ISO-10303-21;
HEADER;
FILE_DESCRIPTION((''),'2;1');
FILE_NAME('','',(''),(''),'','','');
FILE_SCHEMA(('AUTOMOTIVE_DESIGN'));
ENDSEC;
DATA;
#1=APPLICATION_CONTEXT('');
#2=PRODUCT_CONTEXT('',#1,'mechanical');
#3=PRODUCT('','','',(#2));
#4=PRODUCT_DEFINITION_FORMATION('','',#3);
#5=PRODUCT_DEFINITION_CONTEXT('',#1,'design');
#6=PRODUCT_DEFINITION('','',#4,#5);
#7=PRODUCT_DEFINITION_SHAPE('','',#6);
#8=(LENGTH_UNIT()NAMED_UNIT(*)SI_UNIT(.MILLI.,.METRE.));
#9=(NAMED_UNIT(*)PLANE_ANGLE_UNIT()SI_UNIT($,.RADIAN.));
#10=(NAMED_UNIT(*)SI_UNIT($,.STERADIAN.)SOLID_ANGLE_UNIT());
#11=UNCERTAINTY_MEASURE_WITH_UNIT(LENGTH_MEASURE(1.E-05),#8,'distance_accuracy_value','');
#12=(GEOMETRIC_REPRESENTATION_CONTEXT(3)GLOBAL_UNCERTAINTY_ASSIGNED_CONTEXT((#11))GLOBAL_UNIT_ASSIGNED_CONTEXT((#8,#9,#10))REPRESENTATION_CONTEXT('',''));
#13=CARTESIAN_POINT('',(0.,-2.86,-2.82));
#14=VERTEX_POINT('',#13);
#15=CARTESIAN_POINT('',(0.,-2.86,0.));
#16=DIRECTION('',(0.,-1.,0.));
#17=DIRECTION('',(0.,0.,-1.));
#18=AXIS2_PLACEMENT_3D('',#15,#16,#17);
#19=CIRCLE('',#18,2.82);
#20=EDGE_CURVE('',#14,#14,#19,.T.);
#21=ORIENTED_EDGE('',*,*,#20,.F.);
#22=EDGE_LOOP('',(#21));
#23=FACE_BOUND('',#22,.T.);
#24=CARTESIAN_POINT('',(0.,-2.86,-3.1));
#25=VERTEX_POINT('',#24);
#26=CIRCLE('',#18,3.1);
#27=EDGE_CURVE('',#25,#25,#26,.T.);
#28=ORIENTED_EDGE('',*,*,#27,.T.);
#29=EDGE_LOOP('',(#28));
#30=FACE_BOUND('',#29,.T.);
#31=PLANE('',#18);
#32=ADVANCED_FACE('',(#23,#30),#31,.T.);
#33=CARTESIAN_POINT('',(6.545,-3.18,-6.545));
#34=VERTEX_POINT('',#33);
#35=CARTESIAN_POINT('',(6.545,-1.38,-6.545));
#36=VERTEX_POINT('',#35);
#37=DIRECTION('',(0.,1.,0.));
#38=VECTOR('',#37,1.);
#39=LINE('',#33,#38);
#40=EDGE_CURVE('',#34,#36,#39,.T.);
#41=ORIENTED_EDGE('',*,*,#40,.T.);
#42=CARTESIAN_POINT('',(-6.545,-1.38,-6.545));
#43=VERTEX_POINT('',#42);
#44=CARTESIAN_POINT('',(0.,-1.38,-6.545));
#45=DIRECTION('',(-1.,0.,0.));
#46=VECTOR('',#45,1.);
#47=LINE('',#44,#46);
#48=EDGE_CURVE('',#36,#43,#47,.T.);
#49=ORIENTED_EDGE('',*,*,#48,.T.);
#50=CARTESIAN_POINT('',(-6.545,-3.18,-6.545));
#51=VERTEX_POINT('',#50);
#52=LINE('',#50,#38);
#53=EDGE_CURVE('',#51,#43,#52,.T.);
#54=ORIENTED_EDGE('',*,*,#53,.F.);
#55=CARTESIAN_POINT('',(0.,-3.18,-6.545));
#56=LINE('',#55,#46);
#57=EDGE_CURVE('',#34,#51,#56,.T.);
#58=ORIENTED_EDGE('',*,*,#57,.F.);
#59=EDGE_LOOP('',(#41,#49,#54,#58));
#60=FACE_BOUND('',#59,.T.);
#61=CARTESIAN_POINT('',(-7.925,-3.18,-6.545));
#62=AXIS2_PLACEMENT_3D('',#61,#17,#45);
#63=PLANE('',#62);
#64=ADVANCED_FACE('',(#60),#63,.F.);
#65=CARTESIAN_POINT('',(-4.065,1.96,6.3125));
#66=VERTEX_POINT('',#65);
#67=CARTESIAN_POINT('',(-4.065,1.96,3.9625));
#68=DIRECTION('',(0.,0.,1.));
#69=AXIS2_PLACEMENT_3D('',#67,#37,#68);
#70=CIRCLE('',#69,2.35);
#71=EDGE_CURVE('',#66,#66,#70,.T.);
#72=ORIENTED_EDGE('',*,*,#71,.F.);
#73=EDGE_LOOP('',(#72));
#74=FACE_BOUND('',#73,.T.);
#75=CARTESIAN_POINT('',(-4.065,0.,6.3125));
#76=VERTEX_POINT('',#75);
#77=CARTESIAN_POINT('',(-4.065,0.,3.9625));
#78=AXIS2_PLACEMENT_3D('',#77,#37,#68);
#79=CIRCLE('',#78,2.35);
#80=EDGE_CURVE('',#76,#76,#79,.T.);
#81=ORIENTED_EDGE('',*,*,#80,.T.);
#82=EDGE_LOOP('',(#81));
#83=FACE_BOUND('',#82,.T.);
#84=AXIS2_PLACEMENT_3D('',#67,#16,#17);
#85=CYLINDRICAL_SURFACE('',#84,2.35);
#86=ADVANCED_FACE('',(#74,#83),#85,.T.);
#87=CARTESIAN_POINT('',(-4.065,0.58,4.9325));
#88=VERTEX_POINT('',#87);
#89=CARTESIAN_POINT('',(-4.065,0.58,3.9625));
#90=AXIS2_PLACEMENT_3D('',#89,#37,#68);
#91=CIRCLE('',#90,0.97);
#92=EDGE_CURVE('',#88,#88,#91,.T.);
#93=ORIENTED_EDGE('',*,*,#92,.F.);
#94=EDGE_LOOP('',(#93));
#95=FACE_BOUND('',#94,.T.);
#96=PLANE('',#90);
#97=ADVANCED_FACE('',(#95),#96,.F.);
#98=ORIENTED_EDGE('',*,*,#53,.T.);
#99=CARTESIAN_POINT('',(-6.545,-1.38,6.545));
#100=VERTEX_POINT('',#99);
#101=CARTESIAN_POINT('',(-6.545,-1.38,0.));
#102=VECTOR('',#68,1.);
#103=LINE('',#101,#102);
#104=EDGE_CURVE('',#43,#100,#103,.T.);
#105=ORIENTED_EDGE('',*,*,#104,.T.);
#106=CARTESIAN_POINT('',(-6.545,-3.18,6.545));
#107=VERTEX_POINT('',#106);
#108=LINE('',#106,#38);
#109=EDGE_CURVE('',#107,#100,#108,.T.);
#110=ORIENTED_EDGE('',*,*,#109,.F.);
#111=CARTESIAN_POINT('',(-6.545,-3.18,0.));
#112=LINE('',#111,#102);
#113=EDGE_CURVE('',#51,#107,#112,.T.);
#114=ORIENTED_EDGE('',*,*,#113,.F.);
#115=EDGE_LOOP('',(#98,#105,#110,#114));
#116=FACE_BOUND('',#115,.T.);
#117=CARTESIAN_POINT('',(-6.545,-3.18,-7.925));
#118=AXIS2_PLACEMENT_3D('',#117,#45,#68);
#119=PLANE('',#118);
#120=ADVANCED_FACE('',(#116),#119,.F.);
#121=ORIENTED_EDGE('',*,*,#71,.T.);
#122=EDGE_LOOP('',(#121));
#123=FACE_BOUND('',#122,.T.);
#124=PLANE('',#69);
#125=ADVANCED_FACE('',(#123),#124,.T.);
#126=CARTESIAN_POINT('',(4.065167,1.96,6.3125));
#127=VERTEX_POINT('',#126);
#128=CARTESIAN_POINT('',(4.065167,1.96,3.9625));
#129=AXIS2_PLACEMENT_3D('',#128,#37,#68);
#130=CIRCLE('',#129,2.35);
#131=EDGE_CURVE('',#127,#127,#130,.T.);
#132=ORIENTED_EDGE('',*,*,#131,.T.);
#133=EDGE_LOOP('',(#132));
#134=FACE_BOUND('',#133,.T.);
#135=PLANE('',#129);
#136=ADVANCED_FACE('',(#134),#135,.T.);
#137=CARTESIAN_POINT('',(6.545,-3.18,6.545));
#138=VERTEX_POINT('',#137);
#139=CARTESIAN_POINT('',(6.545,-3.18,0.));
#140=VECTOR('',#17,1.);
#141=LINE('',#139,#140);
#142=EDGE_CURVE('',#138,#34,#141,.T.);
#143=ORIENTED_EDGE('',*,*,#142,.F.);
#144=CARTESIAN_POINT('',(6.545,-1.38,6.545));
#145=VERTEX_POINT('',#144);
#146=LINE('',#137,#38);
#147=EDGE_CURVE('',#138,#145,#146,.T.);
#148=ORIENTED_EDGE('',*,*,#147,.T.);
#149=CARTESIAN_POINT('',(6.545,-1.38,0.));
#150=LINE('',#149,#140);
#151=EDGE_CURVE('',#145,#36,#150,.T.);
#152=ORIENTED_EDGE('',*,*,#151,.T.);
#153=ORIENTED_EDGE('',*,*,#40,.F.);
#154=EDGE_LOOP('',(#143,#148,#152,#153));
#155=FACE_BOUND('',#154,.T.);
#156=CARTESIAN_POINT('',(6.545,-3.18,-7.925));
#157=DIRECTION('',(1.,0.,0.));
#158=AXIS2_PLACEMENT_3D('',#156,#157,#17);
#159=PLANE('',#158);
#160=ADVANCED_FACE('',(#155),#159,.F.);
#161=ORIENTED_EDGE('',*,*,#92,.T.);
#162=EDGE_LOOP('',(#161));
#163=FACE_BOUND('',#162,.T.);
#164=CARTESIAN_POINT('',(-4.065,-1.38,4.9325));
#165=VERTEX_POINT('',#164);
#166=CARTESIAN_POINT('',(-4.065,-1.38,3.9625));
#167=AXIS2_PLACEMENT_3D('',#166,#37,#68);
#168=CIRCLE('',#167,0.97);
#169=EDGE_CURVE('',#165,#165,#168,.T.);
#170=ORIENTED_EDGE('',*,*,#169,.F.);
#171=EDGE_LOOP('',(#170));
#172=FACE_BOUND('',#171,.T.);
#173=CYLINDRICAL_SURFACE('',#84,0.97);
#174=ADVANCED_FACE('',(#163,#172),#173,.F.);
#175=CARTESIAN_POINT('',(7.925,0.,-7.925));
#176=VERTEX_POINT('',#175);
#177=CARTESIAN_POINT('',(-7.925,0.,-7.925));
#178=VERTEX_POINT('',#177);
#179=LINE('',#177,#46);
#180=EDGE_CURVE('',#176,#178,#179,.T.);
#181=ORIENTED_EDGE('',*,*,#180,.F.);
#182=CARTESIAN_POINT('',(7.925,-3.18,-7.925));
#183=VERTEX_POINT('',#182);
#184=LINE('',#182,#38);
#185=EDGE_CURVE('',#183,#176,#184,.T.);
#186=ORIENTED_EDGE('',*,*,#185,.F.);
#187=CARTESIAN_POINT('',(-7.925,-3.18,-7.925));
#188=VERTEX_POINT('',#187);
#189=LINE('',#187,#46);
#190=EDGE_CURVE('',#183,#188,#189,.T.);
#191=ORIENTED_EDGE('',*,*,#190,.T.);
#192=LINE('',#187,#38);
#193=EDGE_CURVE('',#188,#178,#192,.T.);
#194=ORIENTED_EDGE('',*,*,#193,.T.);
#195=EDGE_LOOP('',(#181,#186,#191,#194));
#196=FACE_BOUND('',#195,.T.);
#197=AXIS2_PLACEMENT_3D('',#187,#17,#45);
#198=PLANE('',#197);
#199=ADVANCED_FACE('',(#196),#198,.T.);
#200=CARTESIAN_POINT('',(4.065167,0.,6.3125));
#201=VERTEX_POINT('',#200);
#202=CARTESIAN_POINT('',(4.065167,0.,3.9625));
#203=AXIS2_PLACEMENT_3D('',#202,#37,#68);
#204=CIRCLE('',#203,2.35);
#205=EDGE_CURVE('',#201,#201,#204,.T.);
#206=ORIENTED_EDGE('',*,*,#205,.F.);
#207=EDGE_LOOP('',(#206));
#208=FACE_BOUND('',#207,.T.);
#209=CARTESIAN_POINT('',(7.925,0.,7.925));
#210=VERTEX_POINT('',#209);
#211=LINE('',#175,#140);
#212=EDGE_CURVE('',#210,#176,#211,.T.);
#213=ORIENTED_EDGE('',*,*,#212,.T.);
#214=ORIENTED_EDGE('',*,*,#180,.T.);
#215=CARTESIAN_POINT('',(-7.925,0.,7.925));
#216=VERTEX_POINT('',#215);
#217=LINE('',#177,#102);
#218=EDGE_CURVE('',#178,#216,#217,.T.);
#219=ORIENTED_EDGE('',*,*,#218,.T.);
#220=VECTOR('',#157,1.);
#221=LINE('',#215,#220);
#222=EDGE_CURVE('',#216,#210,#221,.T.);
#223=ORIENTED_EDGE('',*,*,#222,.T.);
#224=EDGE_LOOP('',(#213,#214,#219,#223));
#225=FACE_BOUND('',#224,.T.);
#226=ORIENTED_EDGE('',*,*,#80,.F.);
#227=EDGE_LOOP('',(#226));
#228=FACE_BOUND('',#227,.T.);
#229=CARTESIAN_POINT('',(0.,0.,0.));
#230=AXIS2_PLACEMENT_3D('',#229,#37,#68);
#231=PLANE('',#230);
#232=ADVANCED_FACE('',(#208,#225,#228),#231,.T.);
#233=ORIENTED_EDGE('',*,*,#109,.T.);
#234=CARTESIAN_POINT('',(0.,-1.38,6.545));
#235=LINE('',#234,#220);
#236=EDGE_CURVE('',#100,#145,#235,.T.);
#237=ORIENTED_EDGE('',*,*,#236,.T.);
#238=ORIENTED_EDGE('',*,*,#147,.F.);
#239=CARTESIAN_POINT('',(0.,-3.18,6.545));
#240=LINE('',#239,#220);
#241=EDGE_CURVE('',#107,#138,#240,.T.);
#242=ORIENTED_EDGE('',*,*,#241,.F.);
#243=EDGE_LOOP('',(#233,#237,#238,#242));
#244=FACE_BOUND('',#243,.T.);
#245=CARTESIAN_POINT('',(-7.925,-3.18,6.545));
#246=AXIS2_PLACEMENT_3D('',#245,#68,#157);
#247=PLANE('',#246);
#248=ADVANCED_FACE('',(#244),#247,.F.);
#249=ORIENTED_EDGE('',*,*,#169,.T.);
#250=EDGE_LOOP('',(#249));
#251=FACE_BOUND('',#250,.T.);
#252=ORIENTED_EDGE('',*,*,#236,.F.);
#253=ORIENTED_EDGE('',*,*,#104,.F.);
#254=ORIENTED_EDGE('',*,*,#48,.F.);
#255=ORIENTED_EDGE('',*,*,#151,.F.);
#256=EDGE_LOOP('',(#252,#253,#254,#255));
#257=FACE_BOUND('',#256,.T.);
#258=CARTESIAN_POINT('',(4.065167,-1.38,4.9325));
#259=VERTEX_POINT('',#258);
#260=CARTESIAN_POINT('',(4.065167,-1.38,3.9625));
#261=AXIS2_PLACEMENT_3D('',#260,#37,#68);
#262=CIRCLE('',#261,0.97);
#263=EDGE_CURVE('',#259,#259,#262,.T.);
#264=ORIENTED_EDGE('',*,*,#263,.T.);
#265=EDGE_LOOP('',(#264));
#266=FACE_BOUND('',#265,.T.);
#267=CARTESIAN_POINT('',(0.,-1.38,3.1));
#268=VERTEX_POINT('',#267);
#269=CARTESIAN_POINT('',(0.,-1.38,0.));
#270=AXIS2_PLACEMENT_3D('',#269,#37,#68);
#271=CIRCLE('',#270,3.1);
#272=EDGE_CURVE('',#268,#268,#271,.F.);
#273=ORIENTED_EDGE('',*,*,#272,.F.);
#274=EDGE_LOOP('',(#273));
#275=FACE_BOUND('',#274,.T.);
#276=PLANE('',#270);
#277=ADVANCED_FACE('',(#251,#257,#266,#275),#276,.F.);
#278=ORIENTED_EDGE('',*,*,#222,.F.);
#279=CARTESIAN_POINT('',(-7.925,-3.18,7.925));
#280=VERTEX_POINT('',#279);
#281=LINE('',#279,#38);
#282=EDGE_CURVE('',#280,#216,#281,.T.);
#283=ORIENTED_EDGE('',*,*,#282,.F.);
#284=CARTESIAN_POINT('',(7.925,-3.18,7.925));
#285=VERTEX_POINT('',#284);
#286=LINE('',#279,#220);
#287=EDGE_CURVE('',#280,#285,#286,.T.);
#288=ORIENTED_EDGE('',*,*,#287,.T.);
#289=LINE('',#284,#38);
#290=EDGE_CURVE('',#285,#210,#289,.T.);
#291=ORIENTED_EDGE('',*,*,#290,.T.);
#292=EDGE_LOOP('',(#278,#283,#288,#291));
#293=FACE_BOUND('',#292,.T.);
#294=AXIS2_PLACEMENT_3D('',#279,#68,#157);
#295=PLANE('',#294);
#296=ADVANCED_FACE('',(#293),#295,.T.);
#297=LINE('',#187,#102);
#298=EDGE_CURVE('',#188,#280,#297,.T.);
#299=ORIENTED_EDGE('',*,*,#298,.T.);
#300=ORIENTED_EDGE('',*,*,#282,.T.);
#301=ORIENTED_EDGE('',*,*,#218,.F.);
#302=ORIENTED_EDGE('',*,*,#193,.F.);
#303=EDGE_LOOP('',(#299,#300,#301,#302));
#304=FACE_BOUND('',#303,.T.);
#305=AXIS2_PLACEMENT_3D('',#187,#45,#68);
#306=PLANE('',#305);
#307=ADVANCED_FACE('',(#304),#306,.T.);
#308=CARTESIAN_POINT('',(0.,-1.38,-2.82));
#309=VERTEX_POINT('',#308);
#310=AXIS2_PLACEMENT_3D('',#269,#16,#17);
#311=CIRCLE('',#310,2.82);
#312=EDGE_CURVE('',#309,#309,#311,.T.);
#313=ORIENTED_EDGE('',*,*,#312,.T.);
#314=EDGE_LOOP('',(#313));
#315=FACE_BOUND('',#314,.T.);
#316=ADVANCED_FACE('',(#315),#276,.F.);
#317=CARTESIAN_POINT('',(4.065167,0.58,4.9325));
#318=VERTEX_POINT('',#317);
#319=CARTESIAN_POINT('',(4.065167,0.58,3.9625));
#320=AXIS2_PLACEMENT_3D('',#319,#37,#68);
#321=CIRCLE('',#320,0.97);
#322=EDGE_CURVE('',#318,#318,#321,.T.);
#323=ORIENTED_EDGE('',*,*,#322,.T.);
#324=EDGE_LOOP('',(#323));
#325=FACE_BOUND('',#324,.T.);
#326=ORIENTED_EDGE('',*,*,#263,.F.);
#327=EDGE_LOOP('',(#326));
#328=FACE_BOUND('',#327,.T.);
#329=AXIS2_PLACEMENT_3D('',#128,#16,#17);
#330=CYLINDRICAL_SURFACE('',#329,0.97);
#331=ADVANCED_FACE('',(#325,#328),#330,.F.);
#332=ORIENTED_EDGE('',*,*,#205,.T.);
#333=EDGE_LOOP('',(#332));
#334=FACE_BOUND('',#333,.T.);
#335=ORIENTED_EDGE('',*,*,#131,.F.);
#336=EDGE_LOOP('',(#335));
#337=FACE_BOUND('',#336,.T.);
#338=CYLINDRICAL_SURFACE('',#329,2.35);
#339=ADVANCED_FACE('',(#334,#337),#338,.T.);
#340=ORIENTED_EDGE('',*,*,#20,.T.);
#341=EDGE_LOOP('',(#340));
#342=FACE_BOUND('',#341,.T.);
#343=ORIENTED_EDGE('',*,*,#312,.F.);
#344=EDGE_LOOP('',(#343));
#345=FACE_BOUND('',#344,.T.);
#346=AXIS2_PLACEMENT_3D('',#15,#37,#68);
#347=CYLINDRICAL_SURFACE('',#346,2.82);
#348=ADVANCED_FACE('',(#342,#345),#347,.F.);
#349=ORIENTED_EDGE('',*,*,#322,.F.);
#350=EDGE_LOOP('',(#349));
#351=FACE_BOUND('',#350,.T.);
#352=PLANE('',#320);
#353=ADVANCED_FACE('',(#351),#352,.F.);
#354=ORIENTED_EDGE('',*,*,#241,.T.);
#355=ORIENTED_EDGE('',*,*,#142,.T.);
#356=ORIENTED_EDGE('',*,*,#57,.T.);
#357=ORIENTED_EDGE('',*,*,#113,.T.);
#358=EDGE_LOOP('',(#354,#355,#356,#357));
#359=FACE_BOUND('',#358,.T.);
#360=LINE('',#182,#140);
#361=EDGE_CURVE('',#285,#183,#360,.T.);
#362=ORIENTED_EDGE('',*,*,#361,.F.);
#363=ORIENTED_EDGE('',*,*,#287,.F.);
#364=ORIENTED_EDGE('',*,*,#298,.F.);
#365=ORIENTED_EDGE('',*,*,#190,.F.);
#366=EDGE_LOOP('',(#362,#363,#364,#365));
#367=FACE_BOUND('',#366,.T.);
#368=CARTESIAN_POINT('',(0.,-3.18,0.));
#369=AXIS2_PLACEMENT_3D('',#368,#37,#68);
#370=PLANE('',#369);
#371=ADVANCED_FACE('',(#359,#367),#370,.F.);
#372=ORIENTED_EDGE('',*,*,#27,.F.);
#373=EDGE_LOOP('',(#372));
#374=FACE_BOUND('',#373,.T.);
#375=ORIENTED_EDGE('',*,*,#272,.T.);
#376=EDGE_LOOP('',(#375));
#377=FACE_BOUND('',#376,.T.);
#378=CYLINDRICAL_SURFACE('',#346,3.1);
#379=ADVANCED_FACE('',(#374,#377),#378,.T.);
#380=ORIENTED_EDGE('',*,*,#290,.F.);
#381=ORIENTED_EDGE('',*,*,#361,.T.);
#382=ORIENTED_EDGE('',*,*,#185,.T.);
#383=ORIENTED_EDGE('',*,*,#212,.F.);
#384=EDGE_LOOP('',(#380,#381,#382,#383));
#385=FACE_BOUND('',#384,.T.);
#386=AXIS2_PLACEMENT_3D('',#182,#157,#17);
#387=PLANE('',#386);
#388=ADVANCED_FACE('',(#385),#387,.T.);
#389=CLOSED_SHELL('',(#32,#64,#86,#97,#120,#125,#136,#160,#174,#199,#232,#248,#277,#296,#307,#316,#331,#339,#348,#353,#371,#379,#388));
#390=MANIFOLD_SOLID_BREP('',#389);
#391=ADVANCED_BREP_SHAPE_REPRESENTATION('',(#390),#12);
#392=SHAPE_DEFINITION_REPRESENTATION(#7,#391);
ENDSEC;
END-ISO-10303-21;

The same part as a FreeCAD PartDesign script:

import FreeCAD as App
import Part
import Sketcher
from FreeCAD import Vector
Q = App.Units.Quantity


def faces_at(feature, points):
    """Names of the faces that lie closest to the given points."""
    faces = feature.Shape.Faces
    near = lambda p: min(range(len(faces)), key=lambda i: faces[i].distToShape(Part.Vertex(*p))[0])
    return sorted({f"Face{near(p) + 1}" for p in points})


def add_polygon(sketch, points):
    """Adds a closed chain of lines whose ends are joined by coincident constraints."""
    first, n = sketch.GeometryCount, len(points)
    for a, b in zip(points, points[1:] + points[:1]):
        sketch.addGeometry(Part.LineSegment(App.Vector(*a, 0), App.Vector(*b, 0)), False)
    for i in range(n):
        sketch.addConstraint(Sketcher.Constraint("Coincident", first + i, 2, first + (i + 1) % n, 1))

doc = App.newDocument("Part")
body = doc.addObject("PartDesign::Body", "Body")

sketch1 = body.newObject("Sketcher::SketchObject", "Sketch")
sketch1.AttachmentSupport = (doc.getObject("XZ_Plane"), [""])
sketch1.MapMode = "FlatFace"
add_polygon(sketch1, [(-7.925, -7.925), (-7.925, 7.925), (7.925, 7.925), (7.925, -7.925)])
sketch1.addConstraint(Sketcher.Constraint("Vertical", 0))
sketch1.addConstraint(Sketcher.Constraint("Horizontal", 1))
sketch1.addConstraint(Sketcher.Constraint("Vertical", 2))
sketch1.addConstraint(Sketcher.Constraint("Horizontal", 3))
sketch1.addConstraint(Sketcher.Constraint("Symmetric", 0, 2, 2, 2, -1, 1))
sketch1.addConstraint(Sketcher.Constraint("Equal", 3, 0))
sketch1.addConstraint(Sketcher.Constraint("DistanceX", 1, 1, 1, 2, Q("15.85 mm")))
pad1 = body.newObject("PartDesign::Pad", "Pad")
pad1.Profile = sketch1
pad1.Length = 3.18

sketch2 = body.newObject("Sketcher::SketchObject", "Sketch001")
sketch2.AttachmentSupport = (doc.getObject("XZ_Plane"), [""])
sketch2.MapMode = "FlatFace"
sketch2.addGeometry(Part.Circle(Vector(-4.065, 3.9625, 0), Vector(0, 0, 1), 2.35), False)
sketch2.addGeometry(Part.Circle(Vector(4.065167, 3.9625, 0), Vector(0, 0, 1), 2.35), False)
sketch2.addConstraint(Sketcher.Constraint("Equal", 0, 1))
sketch2.addConstraint(Sketcher.Constraint("Horizontal", 0, 3, 1, 3))
sketch2.addConstraint(Sketcher.Constraint("Diameter", 0, Q("4.7 mm")))
sketch2.addConstraint(Sketcher.Constraint("DistanceX", 0, 3, -1, 1, Q("4.065 mm")))
sketch2.addConstraint(Sketcher.Constraint("DistanceY", -1, 1, 0, 3, Q("3.9625 mm")))
sketch2.addConstraint(Sketcher.Constraint("DistanceX", -1, 1, 1, 3, Q("4.065167 mm")))
pad2 = body.newObject("PartDesign::Pad", "Pad001")
pad2.Profile = sketch2
pad2.Length = 1.96
pad2.Reversed = True
doc.recompute()

thickness = body.newObject("PartDesign::Thickness", "Thickness")
thickness.Base = (pad2, faces_at(pad2, [(0, -3.18, 0)]))
thickness.Value = 1.38
thickness.Reversed = True
thickness.Join = "Intersection"

sketch3 = body.newObject("Sketcher::SketchObject", "Sketch002")
sketch3.AttachmentSupport = (doc.getObject("XZ_Plane"), [""])
sketch3.MapMode = "FlatFace"
sketch3.AttachmentOffset = App.Placement(Vector(0, 0, 1.38), App.Rotation())
sketch3.addGeometry(Part.Circle(Vector(0, 0, 0), Vector(0, 0, 1), 3.1), False)
sketch3.addGeometry(Part.Circle(Vector(0, 0, 0), Vector(0, 0, 1), 2.82), False)
sketch3.addConstraint(Sketcher.Constraint("Coincident", 0, 3, -1, 1))
sketch3.addConstraint(Sketcher.Constraint("Coincident", 1, 3, -1, 1))
sketch3.addConstraint(Sketcher.Constraint("Diameter", 0, Q("6.2 mm")))
sketch3.addConstraint(Sketcher.Constraint("Diameter", 1, Q("5.64 mm")))
pad3 = body.newObject("PartDesign::Pad", "Pad002")
pad3.Profile = sketch3
pad3.Length = 1.48

doc.recompute()
